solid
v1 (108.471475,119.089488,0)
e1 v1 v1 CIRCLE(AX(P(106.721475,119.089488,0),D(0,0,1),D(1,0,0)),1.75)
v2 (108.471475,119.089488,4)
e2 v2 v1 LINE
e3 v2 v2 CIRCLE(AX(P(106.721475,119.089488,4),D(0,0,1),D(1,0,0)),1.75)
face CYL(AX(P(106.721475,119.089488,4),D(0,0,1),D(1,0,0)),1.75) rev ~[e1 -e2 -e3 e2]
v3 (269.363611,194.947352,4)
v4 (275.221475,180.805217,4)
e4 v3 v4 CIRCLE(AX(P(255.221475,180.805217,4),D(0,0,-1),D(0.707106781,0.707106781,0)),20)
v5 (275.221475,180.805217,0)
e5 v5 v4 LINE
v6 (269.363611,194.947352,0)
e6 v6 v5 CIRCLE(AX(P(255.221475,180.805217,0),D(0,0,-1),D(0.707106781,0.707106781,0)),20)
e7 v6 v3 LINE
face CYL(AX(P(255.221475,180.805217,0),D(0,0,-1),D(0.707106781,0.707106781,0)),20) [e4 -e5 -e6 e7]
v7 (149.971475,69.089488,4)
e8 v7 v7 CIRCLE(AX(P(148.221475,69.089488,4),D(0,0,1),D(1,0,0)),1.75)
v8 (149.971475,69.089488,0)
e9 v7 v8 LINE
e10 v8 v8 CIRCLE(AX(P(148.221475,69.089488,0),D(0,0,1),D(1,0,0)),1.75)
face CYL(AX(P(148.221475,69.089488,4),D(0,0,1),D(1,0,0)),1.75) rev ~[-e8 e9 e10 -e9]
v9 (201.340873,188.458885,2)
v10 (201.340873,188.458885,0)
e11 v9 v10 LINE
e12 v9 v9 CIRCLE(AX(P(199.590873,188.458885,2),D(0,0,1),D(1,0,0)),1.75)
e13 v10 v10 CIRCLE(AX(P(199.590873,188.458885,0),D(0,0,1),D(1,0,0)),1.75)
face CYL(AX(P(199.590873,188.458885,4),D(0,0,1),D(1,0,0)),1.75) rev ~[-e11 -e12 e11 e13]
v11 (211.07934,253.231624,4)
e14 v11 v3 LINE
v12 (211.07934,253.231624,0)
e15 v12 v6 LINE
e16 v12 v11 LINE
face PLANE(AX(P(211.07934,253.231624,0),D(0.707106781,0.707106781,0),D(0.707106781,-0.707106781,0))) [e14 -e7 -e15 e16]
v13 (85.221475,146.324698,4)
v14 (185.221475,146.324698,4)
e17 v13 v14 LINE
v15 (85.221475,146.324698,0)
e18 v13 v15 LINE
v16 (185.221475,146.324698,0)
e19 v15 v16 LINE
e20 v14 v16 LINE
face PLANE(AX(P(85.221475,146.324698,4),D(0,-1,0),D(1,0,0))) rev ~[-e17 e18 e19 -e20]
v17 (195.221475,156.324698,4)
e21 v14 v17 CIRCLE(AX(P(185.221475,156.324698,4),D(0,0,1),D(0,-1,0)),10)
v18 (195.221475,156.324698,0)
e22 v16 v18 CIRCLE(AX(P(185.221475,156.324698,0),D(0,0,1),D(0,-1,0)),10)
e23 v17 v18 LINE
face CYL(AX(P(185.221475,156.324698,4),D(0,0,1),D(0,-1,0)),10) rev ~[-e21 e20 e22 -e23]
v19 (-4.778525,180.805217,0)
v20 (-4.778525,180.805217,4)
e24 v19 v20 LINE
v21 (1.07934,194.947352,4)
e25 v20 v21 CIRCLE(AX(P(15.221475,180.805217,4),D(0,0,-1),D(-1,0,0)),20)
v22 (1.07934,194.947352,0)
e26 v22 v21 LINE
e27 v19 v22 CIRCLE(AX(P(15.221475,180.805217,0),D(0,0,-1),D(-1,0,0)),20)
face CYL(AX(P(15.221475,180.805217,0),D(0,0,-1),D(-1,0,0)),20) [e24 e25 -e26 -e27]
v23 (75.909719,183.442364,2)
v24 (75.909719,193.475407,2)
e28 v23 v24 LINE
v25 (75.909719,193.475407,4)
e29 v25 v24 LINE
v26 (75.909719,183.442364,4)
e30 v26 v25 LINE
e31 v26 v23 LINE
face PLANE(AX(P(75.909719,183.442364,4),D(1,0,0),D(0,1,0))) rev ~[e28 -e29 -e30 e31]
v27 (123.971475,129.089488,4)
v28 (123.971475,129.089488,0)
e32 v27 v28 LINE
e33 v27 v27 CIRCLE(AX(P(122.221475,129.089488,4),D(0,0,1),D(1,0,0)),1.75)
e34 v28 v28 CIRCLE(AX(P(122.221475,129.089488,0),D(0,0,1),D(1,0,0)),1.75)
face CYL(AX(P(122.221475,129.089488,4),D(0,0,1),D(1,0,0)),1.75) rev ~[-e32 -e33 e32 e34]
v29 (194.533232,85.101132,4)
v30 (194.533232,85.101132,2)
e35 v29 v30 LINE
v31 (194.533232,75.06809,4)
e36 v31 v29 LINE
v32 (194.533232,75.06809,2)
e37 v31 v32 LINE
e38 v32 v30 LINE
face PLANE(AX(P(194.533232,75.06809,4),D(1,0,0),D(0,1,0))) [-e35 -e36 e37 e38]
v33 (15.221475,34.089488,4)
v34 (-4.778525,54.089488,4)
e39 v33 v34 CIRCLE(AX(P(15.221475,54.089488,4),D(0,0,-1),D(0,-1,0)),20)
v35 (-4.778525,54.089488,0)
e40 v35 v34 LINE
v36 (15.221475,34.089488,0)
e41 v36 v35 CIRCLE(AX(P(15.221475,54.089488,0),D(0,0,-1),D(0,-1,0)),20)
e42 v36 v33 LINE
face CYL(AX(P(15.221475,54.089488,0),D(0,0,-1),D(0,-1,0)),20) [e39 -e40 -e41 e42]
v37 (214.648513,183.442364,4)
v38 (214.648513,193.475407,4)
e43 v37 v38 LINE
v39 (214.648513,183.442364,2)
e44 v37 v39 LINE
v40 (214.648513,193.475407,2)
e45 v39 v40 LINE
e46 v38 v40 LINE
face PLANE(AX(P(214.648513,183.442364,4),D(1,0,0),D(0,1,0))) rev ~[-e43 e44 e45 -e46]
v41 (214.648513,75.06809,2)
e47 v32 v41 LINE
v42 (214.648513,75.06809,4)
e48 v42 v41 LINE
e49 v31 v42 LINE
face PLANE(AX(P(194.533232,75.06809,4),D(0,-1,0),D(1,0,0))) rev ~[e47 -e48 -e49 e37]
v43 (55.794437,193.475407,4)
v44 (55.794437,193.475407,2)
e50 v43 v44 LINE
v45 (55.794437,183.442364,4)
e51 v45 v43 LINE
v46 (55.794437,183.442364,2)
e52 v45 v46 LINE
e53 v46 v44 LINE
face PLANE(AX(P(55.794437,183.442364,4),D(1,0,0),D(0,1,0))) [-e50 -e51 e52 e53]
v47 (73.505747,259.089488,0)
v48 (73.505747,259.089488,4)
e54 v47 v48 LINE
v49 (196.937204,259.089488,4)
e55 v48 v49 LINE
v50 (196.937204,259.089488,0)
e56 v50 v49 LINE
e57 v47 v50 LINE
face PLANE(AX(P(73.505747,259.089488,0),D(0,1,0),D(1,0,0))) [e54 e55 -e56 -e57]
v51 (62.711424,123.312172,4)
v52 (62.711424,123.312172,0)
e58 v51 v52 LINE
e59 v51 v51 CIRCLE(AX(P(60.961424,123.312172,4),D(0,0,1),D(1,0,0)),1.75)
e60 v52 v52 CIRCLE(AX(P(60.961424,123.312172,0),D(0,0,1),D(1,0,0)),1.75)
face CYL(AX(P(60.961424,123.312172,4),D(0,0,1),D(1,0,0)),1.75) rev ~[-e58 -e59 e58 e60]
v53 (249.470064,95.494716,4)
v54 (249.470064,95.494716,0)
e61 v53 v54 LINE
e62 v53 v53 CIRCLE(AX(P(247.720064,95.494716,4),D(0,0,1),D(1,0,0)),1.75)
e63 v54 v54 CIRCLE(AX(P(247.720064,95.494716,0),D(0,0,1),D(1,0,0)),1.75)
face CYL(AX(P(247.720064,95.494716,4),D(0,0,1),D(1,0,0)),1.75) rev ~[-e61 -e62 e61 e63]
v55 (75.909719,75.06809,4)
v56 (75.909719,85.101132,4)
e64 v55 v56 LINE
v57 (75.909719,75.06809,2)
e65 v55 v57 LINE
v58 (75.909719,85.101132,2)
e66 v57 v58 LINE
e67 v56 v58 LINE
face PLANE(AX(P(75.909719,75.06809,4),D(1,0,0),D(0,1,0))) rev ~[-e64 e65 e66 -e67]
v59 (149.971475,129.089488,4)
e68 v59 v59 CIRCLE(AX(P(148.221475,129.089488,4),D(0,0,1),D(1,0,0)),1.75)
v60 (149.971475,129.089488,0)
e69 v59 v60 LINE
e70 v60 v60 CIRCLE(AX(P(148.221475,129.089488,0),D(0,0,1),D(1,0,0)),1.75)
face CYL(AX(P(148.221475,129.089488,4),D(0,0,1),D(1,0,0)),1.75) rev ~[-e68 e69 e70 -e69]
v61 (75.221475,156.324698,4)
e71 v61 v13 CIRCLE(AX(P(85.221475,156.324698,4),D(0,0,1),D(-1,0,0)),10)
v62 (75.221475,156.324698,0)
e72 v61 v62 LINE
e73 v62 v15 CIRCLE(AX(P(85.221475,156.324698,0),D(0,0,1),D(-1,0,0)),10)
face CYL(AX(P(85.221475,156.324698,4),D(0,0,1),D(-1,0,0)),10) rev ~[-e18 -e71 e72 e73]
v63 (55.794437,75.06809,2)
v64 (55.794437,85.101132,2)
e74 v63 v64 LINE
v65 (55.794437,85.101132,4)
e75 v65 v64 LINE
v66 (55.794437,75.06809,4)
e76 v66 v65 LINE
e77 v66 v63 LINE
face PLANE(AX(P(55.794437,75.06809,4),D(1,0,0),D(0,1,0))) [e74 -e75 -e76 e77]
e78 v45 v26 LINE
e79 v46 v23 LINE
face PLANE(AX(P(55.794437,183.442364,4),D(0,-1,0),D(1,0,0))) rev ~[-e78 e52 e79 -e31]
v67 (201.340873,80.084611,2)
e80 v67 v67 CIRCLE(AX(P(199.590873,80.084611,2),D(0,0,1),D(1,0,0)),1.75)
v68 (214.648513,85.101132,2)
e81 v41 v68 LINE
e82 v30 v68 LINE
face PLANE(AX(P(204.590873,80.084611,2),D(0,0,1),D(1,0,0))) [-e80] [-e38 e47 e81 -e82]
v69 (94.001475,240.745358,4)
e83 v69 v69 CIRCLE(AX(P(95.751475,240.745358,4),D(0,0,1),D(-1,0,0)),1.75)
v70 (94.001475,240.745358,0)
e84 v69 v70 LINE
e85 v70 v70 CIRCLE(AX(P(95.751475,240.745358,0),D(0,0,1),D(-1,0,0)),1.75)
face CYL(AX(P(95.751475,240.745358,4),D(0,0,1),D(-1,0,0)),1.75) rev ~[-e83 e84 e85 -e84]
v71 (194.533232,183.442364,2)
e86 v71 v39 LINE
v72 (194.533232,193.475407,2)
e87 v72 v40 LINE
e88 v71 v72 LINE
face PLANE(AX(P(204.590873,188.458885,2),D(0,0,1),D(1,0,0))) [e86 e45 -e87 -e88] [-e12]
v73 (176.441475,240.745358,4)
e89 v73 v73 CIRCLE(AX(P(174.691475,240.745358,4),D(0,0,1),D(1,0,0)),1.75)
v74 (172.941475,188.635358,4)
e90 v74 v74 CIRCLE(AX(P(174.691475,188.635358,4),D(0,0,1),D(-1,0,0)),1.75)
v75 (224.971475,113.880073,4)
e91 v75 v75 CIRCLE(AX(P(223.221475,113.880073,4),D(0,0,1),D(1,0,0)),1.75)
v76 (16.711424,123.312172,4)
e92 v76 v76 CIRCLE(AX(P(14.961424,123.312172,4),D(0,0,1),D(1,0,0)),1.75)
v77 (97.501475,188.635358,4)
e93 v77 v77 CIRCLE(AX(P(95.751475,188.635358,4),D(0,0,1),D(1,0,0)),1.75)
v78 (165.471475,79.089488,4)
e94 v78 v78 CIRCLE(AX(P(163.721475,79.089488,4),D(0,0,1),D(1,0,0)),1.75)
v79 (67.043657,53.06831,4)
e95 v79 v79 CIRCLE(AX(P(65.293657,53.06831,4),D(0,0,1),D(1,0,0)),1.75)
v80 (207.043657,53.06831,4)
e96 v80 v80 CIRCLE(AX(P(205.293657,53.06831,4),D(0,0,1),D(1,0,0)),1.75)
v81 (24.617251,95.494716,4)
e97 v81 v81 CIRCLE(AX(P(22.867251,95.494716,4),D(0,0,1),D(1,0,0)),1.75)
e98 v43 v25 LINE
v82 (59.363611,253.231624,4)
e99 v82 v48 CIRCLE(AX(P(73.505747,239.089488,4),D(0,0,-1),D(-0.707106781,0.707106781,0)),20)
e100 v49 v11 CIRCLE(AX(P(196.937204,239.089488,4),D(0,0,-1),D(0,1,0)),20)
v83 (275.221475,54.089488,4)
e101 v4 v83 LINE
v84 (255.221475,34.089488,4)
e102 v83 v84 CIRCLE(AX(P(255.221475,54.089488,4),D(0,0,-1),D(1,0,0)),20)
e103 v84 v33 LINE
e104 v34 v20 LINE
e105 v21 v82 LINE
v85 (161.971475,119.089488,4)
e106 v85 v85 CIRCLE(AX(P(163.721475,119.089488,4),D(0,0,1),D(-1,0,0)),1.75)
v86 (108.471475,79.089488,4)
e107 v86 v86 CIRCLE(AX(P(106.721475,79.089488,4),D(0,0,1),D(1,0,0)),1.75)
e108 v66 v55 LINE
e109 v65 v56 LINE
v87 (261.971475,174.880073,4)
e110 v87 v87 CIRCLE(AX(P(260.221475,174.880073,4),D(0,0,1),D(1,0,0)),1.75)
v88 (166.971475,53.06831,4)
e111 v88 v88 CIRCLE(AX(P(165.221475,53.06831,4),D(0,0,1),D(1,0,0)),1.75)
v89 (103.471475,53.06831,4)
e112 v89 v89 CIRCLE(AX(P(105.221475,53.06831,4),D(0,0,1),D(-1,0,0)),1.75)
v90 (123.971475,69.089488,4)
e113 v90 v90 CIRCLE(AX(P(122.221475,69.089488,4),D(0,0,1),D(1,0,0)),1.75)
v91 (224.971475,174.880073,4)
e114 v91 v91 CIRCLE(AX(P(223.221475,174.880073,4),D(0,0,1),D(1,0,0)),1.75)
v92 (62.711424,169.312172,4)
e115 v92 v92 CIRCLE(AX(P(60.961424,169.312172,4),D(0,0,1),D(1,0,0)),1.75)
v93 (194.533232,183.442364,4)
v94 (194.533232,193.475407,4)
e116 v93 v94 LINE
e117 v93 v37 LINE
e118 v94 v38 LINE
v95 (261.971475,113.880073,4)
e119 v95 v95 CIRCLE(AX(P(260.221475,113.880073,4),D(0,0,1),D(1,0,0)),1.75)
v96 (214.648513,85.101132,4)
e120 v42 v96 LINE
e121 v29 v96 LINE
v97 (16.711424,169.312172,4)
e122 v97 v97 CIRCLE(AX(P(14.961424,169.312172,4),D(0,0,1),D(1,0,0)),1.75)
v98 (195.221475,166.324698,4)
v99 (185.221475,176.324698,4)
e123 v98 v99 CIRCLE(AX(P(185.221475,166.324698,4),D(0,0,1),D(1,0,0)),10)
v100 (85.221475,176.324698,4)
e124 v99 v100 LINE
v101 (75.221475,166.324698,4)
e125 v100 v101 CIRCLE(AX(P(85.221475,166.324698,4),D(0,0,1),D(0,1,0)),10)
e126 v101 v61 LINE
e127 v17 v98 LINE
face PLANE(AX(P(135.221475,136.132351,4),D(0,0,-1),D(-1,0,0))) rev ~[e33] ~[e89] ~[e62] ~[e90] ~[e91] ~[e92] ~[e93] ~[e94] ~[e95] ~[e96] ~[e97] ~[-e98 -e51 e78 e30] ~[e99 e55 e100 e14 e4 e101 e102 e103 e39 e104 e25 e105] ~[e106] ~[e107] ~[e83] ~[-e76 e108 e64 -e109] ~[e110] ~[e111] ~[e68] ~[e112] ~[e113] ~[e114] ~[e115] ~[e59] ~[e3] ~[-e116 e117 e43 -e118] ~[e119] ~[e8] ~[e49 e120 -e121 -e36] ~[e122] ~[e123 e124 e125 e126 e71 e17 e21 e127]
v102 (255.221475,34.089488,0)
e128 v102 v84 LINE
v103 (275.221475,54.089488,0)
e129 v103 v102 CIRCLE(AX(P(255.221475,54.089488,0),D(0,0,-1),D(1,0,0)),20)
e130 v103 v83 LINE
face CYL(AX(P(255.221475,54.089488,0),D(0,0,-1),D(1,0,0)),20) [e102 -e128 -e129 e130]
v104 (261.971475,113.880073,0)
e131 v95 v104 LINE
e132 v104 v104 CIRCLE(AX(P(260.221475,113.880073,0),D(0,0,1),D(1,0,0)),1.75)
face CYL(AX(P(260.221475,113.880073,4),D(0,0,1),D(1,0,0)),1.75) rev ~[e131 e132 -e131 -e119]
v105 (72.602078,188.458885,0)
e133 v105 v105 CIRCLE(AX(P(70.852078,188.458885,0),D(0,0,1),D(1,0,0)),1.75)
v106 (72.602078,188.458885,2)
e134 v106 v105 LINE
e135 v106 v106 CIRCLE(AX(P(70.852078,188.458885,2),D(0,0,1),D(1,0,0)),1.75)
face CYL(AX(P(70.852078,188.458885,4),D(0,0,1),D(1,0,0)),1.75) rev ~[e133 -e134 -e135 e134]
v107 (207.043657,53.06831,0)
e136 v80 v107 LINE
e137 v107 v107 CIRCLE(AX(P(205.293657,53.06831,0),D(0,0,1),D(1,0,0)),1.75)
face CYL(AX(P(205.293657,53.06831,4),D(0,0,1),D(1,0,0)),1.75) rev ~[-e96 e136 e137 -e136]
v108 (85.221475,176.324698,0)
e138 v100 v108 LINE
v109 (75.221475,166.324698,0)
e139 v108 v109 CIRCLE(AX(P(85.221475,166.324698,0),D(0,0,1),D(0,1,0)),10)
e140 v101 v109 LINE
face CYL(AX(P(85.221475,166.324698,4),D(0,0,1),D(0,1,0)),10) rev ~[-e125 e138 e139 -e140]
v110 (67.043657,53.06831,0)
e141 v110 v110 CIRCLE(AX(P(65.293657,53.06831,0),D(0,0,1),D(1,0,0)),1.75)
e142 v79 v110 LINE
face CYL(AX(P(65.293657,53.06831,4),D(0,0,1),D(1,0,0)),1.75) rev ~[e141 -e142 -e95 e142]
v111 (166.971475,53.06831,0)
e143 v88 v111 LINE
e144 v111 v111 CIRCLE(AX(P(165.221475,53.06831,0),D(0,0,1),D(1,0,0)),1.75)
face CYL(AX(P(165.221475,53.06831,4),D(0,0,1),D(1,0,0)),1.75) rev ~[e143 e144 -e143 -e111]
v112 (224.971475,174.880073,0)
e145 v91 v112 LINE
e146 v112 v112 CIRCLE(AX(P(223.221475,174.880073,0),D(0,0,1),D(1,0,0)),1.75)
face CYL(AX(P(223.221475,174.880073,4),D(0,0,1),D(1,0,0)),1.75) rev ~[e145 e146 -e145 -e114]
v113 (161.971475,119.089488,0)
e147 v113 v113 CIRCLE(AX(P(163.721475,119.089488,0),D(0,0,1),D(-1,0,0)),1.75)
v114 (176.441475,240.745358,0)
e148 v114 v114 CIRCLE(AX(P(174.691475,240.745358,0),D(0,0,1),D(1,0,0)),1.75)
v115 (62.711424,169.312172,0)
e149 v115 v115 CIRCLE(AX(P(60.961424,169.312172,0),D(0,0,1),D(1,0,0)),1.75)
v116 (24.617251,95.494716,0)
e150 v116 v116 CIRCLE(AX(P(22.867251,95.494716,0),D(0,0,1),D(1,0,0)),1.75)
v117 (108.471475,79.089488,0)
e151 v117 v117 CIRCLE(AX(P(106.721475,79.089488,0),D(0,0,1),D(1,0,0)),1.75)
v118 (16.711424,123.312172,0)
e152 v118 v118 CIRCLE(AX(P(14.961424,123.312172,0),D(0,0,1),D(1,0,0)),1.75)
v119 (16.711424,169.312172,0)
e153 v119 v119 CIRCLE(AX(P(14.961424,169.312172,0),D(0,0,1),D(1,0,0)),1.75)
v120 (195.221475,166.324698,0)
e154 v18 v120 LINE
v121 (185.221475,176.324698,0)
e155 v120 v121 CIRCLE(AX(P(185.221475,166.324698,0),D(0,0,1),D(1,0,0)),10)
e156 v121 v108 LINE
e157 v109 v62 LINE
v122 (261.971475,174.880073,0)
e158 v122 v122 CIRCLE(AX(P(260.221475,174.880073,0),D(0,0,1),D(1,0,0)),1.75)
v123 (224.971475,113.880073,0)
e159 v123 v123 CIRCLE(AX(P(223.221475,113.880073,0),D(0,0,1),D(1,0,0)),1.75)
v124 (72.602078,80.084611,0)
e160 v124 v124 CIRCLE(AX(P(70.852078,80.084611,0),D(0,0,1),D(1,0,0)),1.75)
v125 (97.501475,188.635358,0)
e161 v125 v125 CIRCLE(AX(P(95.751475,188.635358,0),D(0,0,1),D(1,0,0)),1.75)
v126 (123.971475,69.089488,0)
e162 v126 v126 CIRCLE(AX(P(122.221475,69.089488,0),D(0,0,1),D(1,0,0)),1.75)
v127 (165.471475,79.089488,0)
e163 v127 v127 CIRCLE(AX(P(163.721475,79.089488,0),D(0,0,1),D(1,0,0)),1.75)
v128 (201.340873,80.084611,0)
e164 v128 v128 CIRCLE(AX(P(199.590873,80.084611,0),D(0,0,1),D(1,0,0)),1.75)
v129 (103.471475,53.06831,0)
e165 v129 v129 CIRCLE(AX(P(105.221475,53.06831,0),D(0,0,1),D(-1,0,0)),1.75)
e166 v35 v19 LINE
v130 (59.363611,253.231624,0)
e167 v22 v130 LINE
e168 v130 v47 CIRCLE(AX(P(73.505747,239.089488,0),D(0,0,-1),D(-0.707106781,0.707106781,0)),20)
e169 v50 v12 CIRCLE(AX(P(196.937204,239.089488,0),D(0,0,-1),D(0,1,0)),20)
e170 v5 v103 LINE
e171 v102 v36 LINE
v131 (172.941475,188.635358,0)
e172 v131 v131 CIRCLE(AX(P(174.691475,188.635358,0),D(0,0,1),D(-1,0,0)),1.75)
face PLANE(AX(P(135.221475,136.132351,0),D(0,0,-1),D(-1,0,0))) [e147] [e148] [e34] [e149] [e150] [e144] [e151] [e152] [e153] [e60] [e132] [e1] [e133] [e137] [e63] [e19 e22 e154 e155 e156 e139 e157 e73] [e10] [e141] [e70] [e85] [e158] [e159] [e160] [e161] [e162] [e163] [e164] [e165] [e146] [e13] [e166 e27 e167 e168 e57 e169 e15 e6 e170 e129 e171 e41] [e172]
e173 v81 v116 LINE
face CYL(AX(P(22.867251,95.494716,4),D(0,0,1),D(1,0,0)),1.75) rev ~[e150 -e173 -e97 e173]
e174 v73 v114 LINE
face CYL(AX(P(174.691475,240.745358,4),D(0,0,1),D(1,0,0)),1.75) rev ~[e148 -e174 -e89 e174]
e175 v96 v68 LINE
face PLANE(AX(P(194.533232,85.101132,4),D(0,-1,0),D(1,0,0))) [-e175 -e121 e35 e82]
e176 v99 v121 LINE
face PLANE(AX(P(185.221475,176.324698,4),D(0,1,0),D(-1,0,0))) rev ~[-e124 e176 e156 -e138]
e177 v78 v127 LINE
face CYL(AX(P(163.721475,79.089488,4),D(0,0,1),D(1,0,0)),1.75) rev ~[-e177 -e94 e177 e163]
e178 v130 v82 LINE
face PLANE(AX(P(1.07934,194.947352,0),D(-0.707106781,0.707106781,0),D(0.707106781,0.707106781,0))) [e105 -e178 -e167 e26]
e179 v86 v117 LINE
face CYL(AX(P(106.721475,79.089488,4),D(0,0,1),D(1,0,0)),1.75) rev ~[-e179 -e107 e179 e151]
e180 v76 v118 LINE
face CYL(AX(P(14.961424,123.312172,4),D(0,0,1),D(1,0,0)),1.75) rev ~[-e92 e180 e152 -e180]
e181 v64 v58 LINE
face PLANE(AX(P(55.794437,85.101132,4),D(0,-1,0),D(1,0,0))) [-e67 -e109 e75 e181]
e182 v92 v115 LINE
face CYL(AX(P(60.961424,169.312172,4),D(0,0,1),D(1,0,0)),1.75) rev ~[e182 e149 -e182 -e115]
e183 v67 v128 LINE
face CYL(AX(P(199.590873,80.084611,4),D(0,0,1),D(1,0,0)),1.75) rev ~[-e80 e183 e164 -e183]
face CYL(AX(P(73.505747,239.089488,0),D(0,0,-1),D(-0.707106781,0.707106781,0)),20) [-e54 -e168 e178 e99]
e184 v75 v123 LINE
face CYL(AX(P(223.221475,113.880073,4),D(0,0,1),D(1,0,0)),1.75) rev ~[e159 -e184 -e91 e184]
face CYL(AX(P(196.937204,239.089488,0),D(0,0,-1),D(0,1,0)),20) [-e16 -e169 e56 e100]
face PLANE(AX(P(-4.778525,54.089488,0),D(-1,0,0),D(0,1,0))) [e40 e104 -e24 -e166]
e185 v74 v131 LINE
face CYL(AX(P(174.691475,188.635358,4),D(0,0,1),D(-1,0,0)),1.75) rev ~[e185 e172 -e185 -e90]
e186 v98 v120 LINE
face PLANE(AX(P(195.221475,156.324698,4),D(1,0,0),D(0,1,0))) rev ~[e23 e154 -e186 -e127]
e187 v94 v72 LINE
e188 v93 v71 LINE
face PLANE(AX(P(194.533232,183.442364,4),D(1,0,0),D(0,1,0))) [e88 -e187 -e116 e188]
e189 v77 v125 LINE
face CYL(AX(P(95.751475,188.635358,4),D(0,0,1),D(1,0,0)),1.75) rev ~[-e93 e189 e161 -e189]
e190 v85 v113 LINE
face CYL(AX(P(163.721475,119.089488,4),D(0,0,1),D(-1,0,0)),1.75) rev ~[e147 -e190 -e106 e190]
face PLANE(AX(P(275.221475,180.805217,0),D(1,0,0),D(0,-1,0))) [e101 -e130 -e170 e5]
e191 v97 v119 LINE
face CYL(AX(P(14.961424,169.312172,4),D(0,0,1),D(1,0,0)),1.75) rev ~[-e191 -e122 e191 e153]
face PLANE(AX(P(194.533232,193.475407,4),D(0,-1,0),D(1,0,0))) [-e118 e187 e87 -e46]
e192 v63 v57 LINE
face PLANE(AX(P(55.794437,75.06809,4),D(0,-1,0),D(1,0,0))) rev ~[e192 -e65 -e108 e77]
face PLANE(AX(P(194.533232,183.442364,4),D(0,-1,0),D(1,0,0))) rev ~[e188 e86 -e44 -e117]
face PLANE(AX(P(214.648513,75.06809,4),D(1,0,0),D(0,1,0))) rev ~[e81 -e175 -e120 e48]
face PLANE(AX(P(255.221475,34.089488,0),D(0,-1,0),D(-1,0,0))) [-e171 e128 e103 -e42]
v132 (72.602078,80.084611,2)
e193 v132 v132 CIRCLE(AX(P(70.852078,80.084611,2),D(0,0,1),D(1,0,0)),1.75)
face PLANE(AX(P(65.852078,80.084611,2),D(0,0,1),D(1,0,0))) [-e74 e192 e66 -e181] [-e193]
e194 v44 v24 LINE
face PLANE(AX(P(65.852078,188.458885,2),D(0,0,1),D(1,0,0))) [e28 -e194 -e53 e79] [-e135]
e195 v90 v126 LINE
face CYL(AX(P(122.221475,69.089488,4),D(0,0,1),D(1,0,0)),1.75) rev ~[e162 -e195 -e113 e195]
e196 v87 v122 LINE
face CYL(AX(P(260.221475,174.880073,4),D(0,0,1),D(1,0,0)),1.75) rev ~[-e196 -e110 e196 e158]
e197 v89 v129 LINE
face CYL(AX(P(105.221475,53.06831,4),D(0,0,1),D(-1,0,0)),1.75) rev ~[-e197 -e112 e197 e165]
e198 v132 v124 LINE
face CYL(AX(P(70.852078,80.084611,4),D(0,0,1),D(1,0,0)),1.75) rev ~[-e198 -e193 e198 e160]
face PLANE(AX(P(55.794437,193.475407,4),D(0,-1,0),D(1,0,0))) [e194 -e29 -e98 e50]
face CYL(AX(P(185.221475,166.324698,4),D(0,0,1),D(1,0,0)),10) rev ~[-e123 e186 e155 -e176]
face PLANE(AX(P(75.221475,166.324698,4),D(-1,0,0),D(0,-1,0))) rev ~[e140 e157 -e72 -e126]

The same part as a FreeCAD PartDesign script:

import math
import FreeCAD as App
import Part
import Sketcher


def add_polygon(sketch, points):
    """Adds a closed chain of lines whose ends are joined by coincident constraints."""
    first, n = sketch.GeometryCount, len(points)
    for a, b in zip(points, points[1:] + points[:1]):
        sketch.addGeometry(Part.LineSegment(App.Vector(*a, 0), App.Vector(*b, 0)), False)
    for i in range(n):
        sketch.addConstraint(Sketcher.Constraint("Coincident", first + i, 2, first + (i + 1) % n, 1))

doc = App.newDocument("Part")
params = doc.addObject("Spreadsheet::Sheet", "Params")
for row, (alias, value) in enumerate([
    ("sketch1_radius", "20 mm"),
    ("sketch1_width", "240 mm"),
    ("pad1_length", "4 mm"),
    ("sketch2_diameter", "3.5 mm"),
    ("pocket1_length", "4 mm"),
    ("sketch3_diameter", "3.5 mm"),
    ("pocket2_length", "4 mm"),
    ("sketch4_diameter", "3.5 mm"),
    ("pocket3_length", "4 mm"),
    ("sketch5_diameter", "3.5 mm"),
    ("pocket4_length", "4 mm"),
    ("sketch6_radius", "10 mm"),
    ("sketch6_width", "100 mm"),
    ("sketch6_height", "10 mm"),
    ("pocket5_length", "4 mm"),
    ("sketch7_diameter", "3.5 mm"),
    ("pocket6_length", "4 mm"),
    ("sketch8_diameter", "3.5 mm"),
    ("pocket7_length", "2 mm"),
    ("sketch9_diameter", "3.5 mm"),
    ("pocket8_length", "10 mm"),
    ("sketch10_diameter", "3.5 mm"),
], start=1):
    params.set(f"A{row}", alias)
    params.set(f"B{row}", "=" + value)
    params.setAlias(f"B{row}", alias)

body = doc.addObject("PartDesign::Body", "Body")

# Sketch on XY plane
sketch1 = body.newObject("Sketcher::SketchObject", "Sketch")
sketch1.AttachmentSupport = (doc.getObject("XY_Plane"), [""])
sketch1.MapMode = "FlatFace"
sketch1.addGeometry([
    Part.LineSegment(App.Vector(197, 259, 0), App.Vector(74, 259, 0)),  # 0
    Part.ArcOfCircle(Part.Circle(App.Vector(74, 239, 0), App.Vector(0, 0, 1), 20), math.radians(90), math.radians(135)),  # 1
    Part.LineSegment(App.Vector(59, 253, 0), App.Vector(1, 195, 0)),  # 2
    Part.ArcOfCircle(Part.Circle(App.Vector(15, 181, 0), App.Vector(0, 0, 1), 20), math.radians(135), math.radians(180)),  # 3
    Part.LineSegment(App.Vector(-5, 181, 0), App.Vector(-5, 54, 0)),  # 4
    Part.ArcOfCircle(Part.Circle(App.Vector(15, 54, 0), App.Vector(0, 0, 1), 20), math.radians(-180), math.radians(-90)),  # 5
    Part.LineSegment(App.Vector(15, 34, 0), App.Vector(255, 34, 0)),  # 6
    Part.ArcOfCircle(Part.Circle(App.Vector(255, 54, 0), App.Vector(0, 0, 1), 20), math.radians(-90), math.radians(0)),  # 7
    Part.LineSegment(App.Vector(275, 54, 0), App.Vector(275, 181, 0)),  # 8
    Part.ArcOfCircle(Part.Circle(App.Vector(255, 181, 0), App.Vector(0, 0, 1), 20), math.radians(0), math.radians(45)),  # 9
    Part.LineSegment(App.Vector(269, 195, 0), App.Vector(211, 253, 0)),  # 10
    Part.ArcOfCircle(Part.Circle(App.Vector(197, 239, 0), App.Vector(0, 0, 1), 20), math.radians(45), math.radians(90)),  # 11
], False)
sketch1.addConstraint([
    Sketcher.Constraint("Tangent", 0, 2, 1, 1),
    Sketcher.Constraint("Tangent", 1, 2, 2, 1),
    Sketcher.Constraint("Tangent", 2, 2, 3, 1),
    Sketcher.Constraint("Tangent", 3, 2, 4, 1),
    Sketcher.Constraint("Tangent", 4, 2, 5, 1),
    Sketcher.Constraint("Tangent", 5, 2, 6, 1),
    Sketcher.Constraint("Tangent", 6, 2, 7, 1),
    Sketcher.Constraint("Tangent", 7, 2, 8, 1),
    Sketcher.Constraint("Tangent", 8, 2, 9, 1),
    Sketcher.Constraint("Tangent", 9, 2, 10, 1),
    Sketcher.Constraint("Tangent", 10, 2, 11, 1),
    Sketcher.Constraint("Tangent", 11, 2, 0, 1),
    Sketcher.Constraint("Horizontal", 0),
    Sketcher.Constraint("Vertical", 4),
    Sketcher.Constraint("Horizontal", 6),
    Sketcher.Constraint("Vertical", 8),
    Sketcher.Constraint("Equal", 1, 3),
    Sketcher.Constraint("Equal", 3, 5),
    Sketcher.Constraint("Equal", 5, 7),
    Sketcher.Constraint("Equal", 7, 9),
    Sketcher.Constraint("Equal", 9, 11),
    Sketcher.Constraint("Perpendicular", 2, 10),
    Sketcher.Constraint("Horizontal", 3, 3, 9, 3),
    Sketcher.Constraint("Horizontal", 2, 2, 9, 2),
    Sketcher.Constraint("Radius", 1, 20.0),
    Sketcher.Constraint("DistanceX", 6, 1, 6, 2, 240.0),
    Sketcher.Constraint("DistanceY", 5, 3, 1, 3, 185.0),
    Sketcher.Constraint("DistanceY", 4, 2, 4, 1, 126.715729),
    Sketcher.Constraint("DistanceY", -1, 1, 1, 3, 239.089488),
    Sketcher.Constraint("DistanceX", -1, 1, 1, 2, 59.363611),
])
sketch1.setExpression("Constraints[24]", "Params.sketch1_radius")
sketch1.setExpression("Constraints[25]", "Params.sketch1_width")
pad1 = body.newObject("PartDesign::Pad", "Pad")
pad1.Profile = sketch1
pad1.setExpression("Length", "Params.pad1_length")

# Sketch on XY plane
sketch2 = body.newObject("Sketcher::SketchObject", "Sketch001")
sketch2.AttachmentSupport = (doc.getObject("XY_Plane"), [""])
sketch2.MapMode = "FlatFace"
sketch2.AttachmentOffset = App.Placement(App.Vector(0, 0, 4), App.Rotation())
sketch2.addGeometry([
    Part.Circle(App.Vector(223.2, 174.9, 0), App.Vector(0, 0, 1), 1.8),
    Part.Circle(App.Vector(260.2, 174.9, 0), App.Vector(0, 0, 1), 1.8),
    Part.Circle(App.Vector(260.2, 113.9, 0), App.Vector(0, 0, 1), 1.8),
    Part.Circle(App.Vector(223.2, 113.9, 0), App.Vector(0, 0, 1), 1.8),
], False)
sketch2.addConstraint([
    Sketcher.Constraint("Equal", 0, 1),
    Sketcher.Constraint("Equal", 1, 2),
    Sketcher.Constraint("Equal", 2, 3),
    Sketcher.Constraint("Horizontal", 0, 3, 1, 3),
    Sketcher.Constraint("Horizontal", 2, 3, 3, 3),
    Sketcher.Constraint("Vertical", 1, 3, 2, 3),
    Sketcher.Constraint("Vertical", 0, 3, 3, 3),
    Sketcher.Constraint("Diameter", 0, 3.5),
    Sketcher.Constraint("DistanceX", 0, 3, 1, 3, 37.0),
    Sketcher.Constraint("DistanceY", 2, 3, 1, 3, 61.0),
    Sketcher.Constraint("DistanceX", -1, 1, 0, 3, 223.221475),
    Sketcher.Constraint("DistanceY", -1, 1, 0, 3, 174.880073),
])
sketch2.setExpression("Constraints[7]", "Params.sketch2_diameter")
pocket1 = body.newObject("PartDesign::Pocket", "Pocket")
pocket1.Profile = sketch2
pocket1.setExpression("Length", "Params.pocket1_length")

# Sketch on XY plane
sketch3 = body.newObject("Sketcher::SketchObject", "Sketch002")
sketch3.AttachmentSupport = (doc.getObject("XY_Plane"), [""])
sketch3.MapMode = "FlatFace"
sketch3.AttachmentOffset = App.Placement(App.Vector(0, 0, 4), App.Rotation())
sketch3.addGeometry([
    Part.Circle(App.Vector(174.7, 240.7, 0), App.Vector(0, 0, 1), 1.8),  # 0
    Part.Circle(App.Vector(174.7, 188.6, 0), App.Vector(0, 0, 1), 1.8),  # 1
    Part.Circle(App.Vector(95.8, 188.6, 0), App.Vector(0, 0, 1), 1.8),  # 2
    Part.Circle(App.Vector(95.8, 240.7, 0), App.Vector(0, 0, 1), 1.8),  # 3
    Part.Circle(App.Vector(165.2, 53.1, 0), App.Vector(0, 0, 1), 1.8),  # 4
    Part.Circle(App.Vector(105.2, 53.1, 0), App.Vector(0, 0, 1), 1.8),  # 5
], False)
sketch3.addConstraint([
    Sketcher.Constraint("Equal", 0, 1),
    Sketcher.Constraint("Equal", 1, 2),
    Sketcher.Constraint("Equal", 2, 3),
    Sketcher.Constraint("Equal", 3, 4),
    Sketcher.Constraint("Equal", 4, 5),
    Sketcher.Constraint("Horizontal", 1, 3, 2, 3),
    Sketcher.Constraint("Horizontal", 0, 3, 3, 3),
    Sketcher.Constraint("Horizontal", 4, 3, 5, 3),
    Sketcher.Constraint("Vertical", 0, 3, 1, 3),
    Sketcher.Constraint("Vertical", 2, 3, 3, 3),
    Sketcher.Constraint("Diameter", 0, 3.5),
    Sketcher.Constraint("DistanceX", 5, 3, 4, 3, 60.0),
    Sketcher.Constraint("DistanceY", 1, 3, 0, 3, 52.11),
    Sketcher.Constraint("DistanceX", 2, 3, 1, 3, 78.94),
    Sketcher.Constraint("DistanceX", 4, 3, 1, 3, 9.47),
    Sketcher.Constraint("DistanceY", -1, 1, 4, 3, 53.06831),
    Sketcher.Constraint("DistanceY", 4, 3, 1, 3, 135.567048),
    Sketcher.Constraint("DistanceX", -1, 1, 0, 3, 174.691475),
])
sketch3.setExpression("Constraints[10]", "Params.sketch3_diameter")
pocket2 = body.newObject("PartDesign::Pocket", "Pocket001")
pocket2.Profile = sketch3
pocket2.setExpression("Length", "Params.pocket2_length")

# Sketch on XY plane
sketch4 = body.newObject("Sketcher::SketchObject", "Sketch003")
sketch4.AttachmentSupport = (doc.getObject("XY_Plane"), [""])
sketch4.MapMode = "FlatFace"
sketch4.AttachmentOffset = App.Placement(App.Vector(0, 0, 4), App.Rotation())
sketch4.addGeometry([
    Part.Circle(App.Vector(122.2, 129.1, 0), App.Vector(0, 0, 1), 1.8),
    Part.Circle(App.Vector(148.2, 129.1, 0), App.Vector(0, 0, 1), 1.8),
    Part.Circle(App.Vector(122.2, 69.1, 0), App.Vector(0, 0, 1), 1.8),
    Part.Circle(App.Vector(148.2, 69.1, 0), App.Vector(0, 0, 1), 1.8),
], False)
sketch4.addConstraint([
    Sketcher.Constraint("Equal", 0, 1),
    Sketcher.Constraint("Equal", 1, 2),
    Sketcher.Constraint("Equal", 2, 3),
    Sketcher.Constraint("Horizontal", 0, 3, 1, 3),
    Sketcher.Constraint("Horizontal", 2, 3, 3, 3),
    Sketcher.Constraint("Vertical", 0, 3, 2, 3),
    Sketcher.Constraint("Vertical", 1, 3, 3, 3),
    Sketcher.Constraint("Diameter", 0, 3.5),
    Sketcher.Constraint("DistanceX", 0, 3, 1, 3, 26.0),
    Sketcher.Constraint("DistanceY", 2, 3, 0, 3, 60.0),
    Sketcher.Constraint("DistanceY", -1, 1, 0, 3, 129.089488),
    Sketcher.Constraint("DistanceX", -1, 1, 0, 3, 122.221475),
])
sketch4.setExpression("Constraints[7]", "Params.sketch4_diameter")
pocket3 = body.newObject("PartDesign::Pocket", "Pocket002")
pocket3.Profile = sketch4
pocket3.setExpression("Length", "Params.pocket3_length")

# Sketch on XY plane
sketch5 = body.newObject("Sketcher::SketchObject", "Sketch004")
sketch5.AttachmentSupport = (doc.getObject("XY_Plane"), [""])
sketch5.MapMode = "FlatFace"
sketch5.AttachmentOffset = App.Placement(App.Vector(0, 0, 4), App.Rotation())
sketch5.addGeometry([
    Part.Circle(App.Vector(22.9, 95.5, 0), App.Vector(0, 0, 1), 1.8),
    Part.Circle(App.Vector(65.3, 53.1, 0), App.Vector(0, 0, 1), 1.8),
    Part.Circle(App.Vector(247.7, 95.5, 0), App.Vector(0, 0, 1), 1.8),
    Part.Circle(App.Vector(205.3, 53.1, 0), App.Vector(0, 0, 1), 1.8),
], False)
sketch5.addConstraint([
    Sketcher.Constraint("Equal", 0, 1),
    Sketcher.Constraint("Equal", 1, 2),
    Sketcher.Constraint("Equal", 2, 3),
    Sketcher.Constraint("Horizontal", 0, 3, 2, 3),
    Sketcher.Constraint("Horizontal", 1, 3, 3, 3),
    Sketcher.Constraint("Diameter", 0, 3.5),
    Sketcher.Constraint("DistanceX", 1, 3, 3, 3, 140.0),
    Sketcher.Constraint("DistanceX", -1, 1, 0, 3, 22.867251),
    Sketcher.Constraint("DistanceY", -1, 1, 1, 3, 53.06831),
    Sketcher.Constraint("DistanceY", -1, 1, 0, 3, 95.494716),
    Sketcher.Constraint("DistanceX", -1, 1, 1, 3, 65.293657),
    Sketcher.Constraint("DistanceX", -1, 1, 2, 3, 247.720064),
])
sketch5.setExpression("Constraints[5]", "Params.sketch5_diameter")
pocket4 = body.newObject("PartDesign::Pocket", "Pocket003")
pocket4.Profile = sketch5
pocket4.setExpression("Length", "Params.pocket4_length")

# Sketch on XY plane
sketch6 = body.newObject("Sketcher::SketchObject", "Sketch005")
sketch6.AttachmentSupport = (doc.getObject("XY_Plane"), [""])
sketch6.MapMode = "FlatFace"
sketch6.AttachmentOffset = App.Placement(App.Vector(0, 0, 4), App.Rotation())
sketch6.addGeometry([
    Part.ArcOfCircle(Part.Circle(App.Vector(85, 166, 0), App.Vector(0, 0, 1), 10), math.radians(90), math.radians(180)),  # 0
    Part.LineSegment(App.Vector(75, 166, 0), App.Vector(75, 156, 0)),  # 1
    Part.ArcOfCircle(Part.Circle(App.Vector(85, 156, 0), App.Vector(0, 0, 1), 10), math.radians(180), math.radians(270)),  # 2
    Part.LineSegment(App.Vector(85, 146, 0), App.Vector(185, 146, 0)),  # 3
    Part.ArcOfCircle(Part.Circle(App.Vector(185, 156, 0), App.Vector(0, 0, 1), 10), math.radians(-90), math.radians(0)),  # 4
    Part.LineSegment(App.Vector(195, 156, 0), App.Vector(195, 166, 0)),  # 5
    Part.ArcOfCircle(Part.Circle(App.Vector(185, 166, 0), App.Vector(0, 0, 1), 10), math.radians(0), math.radians(90)),  # 6
    Part.LineSegment(App.Vector(185, 176, 0), App.Vector(85, 176, 0)),  # 7
], False)
sketch6.addConstraint([
    Sketcher.Constraint("Tangent", 0, 2, 1, 1),
    Sketcher.Constraint("Tangent", 1, 2, 2, 1),
    Sketcher.Constraint("Tangent", 2, 2, 3, 1),
    Sketcher.Constraint("Tangent", 3, 2, 4, 1),
    Sketcher.Constraint("Tangent", 4, 2, 5, 1),
    Sketcher.Constraint("Tangent", 5, 2, 6, 1),
    Sketcher.Constraint("Tangent", 6, 2, 7, 1),
    Sketcher.Constraint("Tangent", 7, 2, 0, 1),
    Sketcher.Constraint("Vertical", 1),
    Sketcher.Constraint("Horizontal", 3),
    Sketcher.Constraint("Vertical", 5),
    Sketcher.Constraint("Horizontal", 7),
    Sketcher.Constraint("Equal", 0, 2),
    Sketcher.Constraint("Equal", 2, 4),
    Sketcher.Constraint("Equal", 4, 6),
    Sketcher.Constraint("Radius", 0, 10.0),
    Sketcher.Constraint("DistanceX", 3, 1, 3, 2, 100.0),
    Sketcher.Constraint("DistanceY", 1, 2, 1, 1, 10.0),
    Sketcher.Constraint("DistanceY", -1, 1, 0, 3, 166.324698),
    Sketcher.Constraint("DistanceX", -1, 1, 0, 3, 85.221475),
])
sketch6.setExpression("Constraints[15]", "Params.sketch6_radius")
sketch6.setExpression("Constraints[16]", "Params.sketch6_width")
sketch6.setExpression("Constraints[17]", "Params.sketch6_height")
pocket5 = body.newObject("PartDesign::Pocket", "Pocket004")
pocket5.Profile = sketch6
pocket5.setExpression("Length", "Params.pocket5_length")

# Sketch on XY plane
sketch7 = body.newObject("Sketcher::SketchObject", "Sketch006")
sketch7.AttachmentSupport = (doc.getObject("XY_Plane"), [""])
sketch7.MapMode = "FlatFace"
sketch7.AttachmentOffset = App.Placement(App.Vector(0, 0, 4), App.Rotation())
sketch7.addGeometry([
    Part.Circle(App.Vector(106.7, 79.1, 0), App.Vector(0, 0, 1), 1.8),
    Part.Circle(App.Vector(163.7, 79.1, 0), App.Vector(0, 0, 1), 1.7),
    Part.Circle(App.Vector(106.7, 119.1, 0), App.Vector(0, 0, 1), 1.8),
    Part.Circle(App.Vector(163.7, 119.1, 0), App.Vector(0, 0, 1), 1.8),
], False)
sketch7.addConstraint([
    Sketcher.Constraint("Equal", 0, 1),
    Sketcher.Constraint("Equal", 1, 2),
    Sketcher.Constraint("Equal", 2, 3),
    Sketcher.Constraint("Horizontal", 0, 3, 1, 3),
    Sketcher.Constraint("Horizontal", 2, 3, 3, 3),
    Sketcher.Constraint("Vertical", 0, 3, 2, 3),
    Sketcher.Constraint("Vertical", 1, 3, 3, 3),
    Sketcher.Constraint("Diameter", 0, 3.5),
    Sketcher.Constraint("DistanceX", 0, 3, 1, 3, 57.0),
    Sketcher.Constraint("DistanceY", 0, 3, 2, 3, 40.0),
    Sketcher.Constraint("DistanceY", -1, 1, 0, 3, 79.089488),
    Sketcher.Constraint("DistanceX", -1, 1, 0, 3, 106.721475),
])
sketch7.setExpression("Constraints[7]", "Params.sketch7_diameter")
pocket6 = body.newObject("PartDesign::Pocket", "Pocket005")
pocket6.Profile = sketch7
pocket6.setExpression("Length", "Params.pocket6_length")

# Sketch on XY plane
sketch8 = body.newObject("Sketcher::SketchObject", "Sketch007")
sketch8.AttachmentSupport = (doc.getObject("XY_Plane"), [""])
sketch8.MapMode = "FlatFace"
sketch8.AttachmentOffset = App.Placement(App.Vector(0, 0, 4), App.Rotation())
add_polygon(sketch8, [(55.8, 193.5), (55.8, 183.4), (75.9, 183.4), (75.9, 193.5)])  # lines 0-3
sketch8.addGeometry(Part.Circle(App.Vector(70.9, 188.5, 0), App.Vector(0, 0, 1), 1.8), False)  # 4
add_polygon(sketch8, [(55.8, 85.1), (55.8, 75.1), (75.9, 75.1), (75.9, 85.1)])  # lines 5-8
sketch8.addGeometry(Part.Circle(App.Vector(70.9, 80.1, 0), App.Vector(0, 0, 1), 1.8), False)  # 9
add_polygon(sketch8, [(194.5, 85.1), (194.5, 75.1), (214.6, 75.1), (214.6, 85.1)])  # lines 10-13
sketch8.addGeometry(Part.Circle(App.Vector(199.6, 80.1, 0), App.Vector(0, 0, 1), 1.8), False)  # 14
add_polygon(sketch8, [(194.5, 193.5), (194.5, 183.4), (214.6, 183.4), (214.6, 193.5)])  # lines 15-18
sketch8.addGeometry(Part.Circle(App.Vector(199.6, 188.5, 0), App.Vector(0, 0, 1), 1.8), False)  # 19
sketch8.addConstraint([
    Sketcher.Constraint("Vertical", 0),
    Sketcher.Constraint("Horizontal", 1),
    Sketcher.Constraint("Vertical", 2),
    Sketcher.Constraint("Horizontal", 3),
    Sketcher.Constraint("Vertical", 5),
    Sketcher.Constraint("Horizontal", 6),
    Sketcher.Constraint("Vertical", 7),
    Sketcher.Constraint("Horizontal", 8),
    Sketcher.Constraint("Vertical", 10),
    Sketcher.Constraint("Horizontal", 11),
    Sketcher.Constraint("Vertical", 12),
    Sketcher.Constraint("Horizontal", 13),
    Sketcher.Constraint("Vertical", 15),
    Sketcher.Constraint("Horizontal", 16),
    Sketcher.Constraint("Vertical", 17),
    Sketcher.Constraint("Horizontal", 18),
    Sketcher.Constraint("Equal", 4, 9),
    Sketcher.Constraint("Equal", 9, 14),
    Sketcher.Constraint("Equal", 14, 19),
    Sketcher.Constraint("Horizontal", 9, 3, 14, 3),
    Sketcher.Constraint("Horizontal", 4, 3, 19, 3),
    Sketcher.Constraint("Horizontal", 6, 2, 10, 2),
    Sketcher.Constraint("Horizontal", 8, 2, 12, 2),
    Sketcher.Constraint("Horizontal", 1, 2, 15, 2),
    Sketcher.Constraint("Horizontal", 3, 2, 17, 2),
    Sketcher.Constraint("Vertical", 4, 3, 9, 3),
    Sketcher.Constraint("Vertical", 14, 3, 19, 3),
    Sketcher.Constraint("Vertical", 3, 2, 5, 2),
    Sketcher.Constraint("Vertical", 2, 2, 6, 2),
    Sketcher.Constraint("Vertical", 13, 2, 15, 2),
    Sketcher.Constraint("Vertical", 12, 2, 16, 2),
    Sketcher.Constraint("Equal", 8, 11),
    Sketcher.Constraint("Equal", 2, 5),
    Sketcher.Constraint("Diameter", 4, 3.5),
    Sketcher.Constraint("DistanceX", 1, 1, 1, 2, 20.115282),
    Sketcher.Constraint("DistanceY", 0, 2, 0, 1, 10.033042),
    Sketcher.Constraint("DistanceY", -1, 1, 9, 3, 80.084611),
    Sketcher.Constraint("DistanceX", -1, 1, 1, 2, 75.909719),
    Sketcher.Constraint("DistanceY", -1, 1, 5, 2, 75.06809),
    Sketcher.Constraint("DistanceX", -1, 1, 10, 2, 194.533232),
    Sketcher.Constraint("DistanceX", 0, 2, 4, 3, 15.057641),
    Sketcher.Constraint("DistanceY", 0, 2, 4, 3, 5.016521),
    Sketcher.Constraint("DistanceX", 10, 2, 14, 3, 5.057641),
    Sketcher.Constraint("DistanceY", -1, 1, 4, 3, 188.458885),
])
sketch8.setExpression("Constraints[49]", "Params.sketch8_diameter")
pocket7 = body.newObject("PartDesign::Pocket", "Pocket006")
pocket7.Profile = sketch8
pocket7.setExpression("Length", "Params.pocket7_length")

# Sketch on XY plane
sketch9 = body.newObject("Sketcher::SketchObject", "Sketch008")
sketch9.AttachmentSupport = (doc.getObject("XY_Plane"), [""])
sketch9.MapMode = "FlatFace"
sketch9.AttachmentOffset = App.Placement(App.Vector(0, 0, 4), App.Rotation())
sketch9.addGeometry([
    Part.Circle(App.Vector(70.9, 188.5, 0), App.Vector(0, 0, 1), 1.8),
    Part.Circle(App.Vector(70.9, 80.1, 0), App.Vector(0, 0, 1), 1.8),
    Part.Circle(App.Vector(199.6, 80.1, 0), App.Vector(0, 0, 1), 1.8),
    Part.Circle(App.Vector(199.6, 188.5, 0), App.Vector(0, 0, 1), 1.8),
], False)
sketch9.addConstraint([
    Sketcher.Constraint("Equal", 0, 1),
    Sketcher.Constraint("Equal", 1, 2),
    Sketcher.Constraint("Equal", 2, 3),
    Sketcher.Constraint("Horizontal", 1, 3, 2, 3),
    Sketcher.Constraint("Horizontal", 0, 3, 3, 3),
    Sketcher.Constraint("Vertical", 0, 3, 1, 3),
    Sketcher.Constraint("Vertical", 2, 3, 3, 3),
    Sketcher.Constraint("Diameter", 0, 3.5),
    Sketcher.Constraint("DistanceY", -1, 1, 1, 3, 80.084611),
    Sketcher.Constraint("DistanceX", -1, 1, 0, 3, 70.852078),
    Sketcher.Constraint("DistanceY", -1, 1, 0, 3, 188.458885),
    Sketcher.Constraint("DistanceX", -1, 1, 2, 3, 199.590873),
])
sketch9.setExpression("Constraints[7]", "Params.sketch9_diameter")
pocket8 = body.newObject("PartDesign::Pocket", "Pocket007")
pocket8.Profile = sketch9
pocket8.setExpression("Length", "Params.pocket8_length")

# Sketch on XY plane
sketch10 = body.newObject("Sketcher::SketchObject", "Sketch009")
sketch10.AttachmentSupport = (doc.getObject("XY_Plane"), [""])
sketch10.MapMode = "FlatFace"
sketch10.AttachmentOffset = App.Placement(App.Vector(0, 0, 4), App.Rotation())
sketch10.addGeometry([
    Part.Circle(App.Vector(61, 169.3, 0), App.Vector(0, 0, 1), 1.8),
    Part.Circle(App.Vector(61, 123.3, 0), App.Vector(0, 0, 1), 1.8),
    Part.Circle(App.Vector(15, 123.3, 0), App.Vector(0, 0, 1), 1.8),
    Part.Circle(App.Vector(15, 169.3, 0), App.Vector(0, 0, 1), 1.8),
], False)
sketch10.addConstraint([
    Sketcher.Constraint("Equal", 0, 1),
    Sketcher.Constraint("Equal", 1, 2),
    Sketcher.Constraint("Equal", 2, 3),
    Sketcher.Constraint("Horizontal", 1, 3, 2, 3),
    Sketcher.Constraint("Horizontal", 0, 3, 3, 3),
    Sketcher.Constraint("Vertical", 0, 3, 1, 3),
    Sketcher.Constraint("Vertical", 2, 3, 3, 3),
    Sketcher.Constraint("Diameter", 0, 3.5),
    Sketcher.Constraint("DistanceY", 1, 3, 0, 3, 46.0),
    Sketcher.Constraint("DistanceX", 2, 3, 1, 3, 46.0),
    Sketcher.Constraint("DistanceY", -1, 1, 0, 3, 169.312172),
    Sketcher.Constraint("DistanceX", -1, 1, 0, 3, 60.961424),
])
sketch10.setExpression("Constraints[7]", "Params.sketch10_diameter")
pocket9 = body.newObject("PartDesign::Pocket", "Pocket008")
pocket9.Profile = sketch10
pocket9.Type = "ThroughAll"

doc.recompute()
